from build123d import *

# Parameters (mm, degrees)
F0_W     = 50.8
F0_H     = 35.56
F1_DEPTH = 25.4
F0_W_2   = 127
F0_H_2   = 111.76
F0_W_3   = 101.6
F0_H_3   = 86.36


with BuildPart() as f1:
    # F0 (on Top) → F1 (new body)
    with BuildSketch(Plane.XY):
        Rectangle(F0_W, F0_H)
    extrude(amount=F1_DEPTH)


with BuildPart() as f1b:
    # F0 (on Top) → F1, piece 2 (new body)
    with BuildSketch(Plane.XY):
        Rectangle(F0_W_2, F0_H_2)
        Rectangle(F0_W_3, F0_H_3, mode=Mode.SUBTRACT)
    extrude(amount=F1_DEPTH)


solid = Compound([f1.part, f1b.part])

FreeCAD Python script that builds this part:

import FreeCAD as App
import Part
import Sketcher
Q = App.Units.Quantity

doc = App.newDocument("Part")
body = doc.addObject("PartDesign::Body", "Body")

sketch1 = doc.addObject("Sketcher::SketchObject", "Sketch")
body.addObject(sketch1)
sketch1.AttachmentSupport = (doc.XY_Plane, [""])
sketch1.MapMode = "FlatFace"
sketch1.addGeometry(Part.LineSegment(App.Vector(-25.4, 17.78, 0), App.Vector(-25.4, -17.78, 0)), False)
sketch1.addGeometry(Part.LineSegment(App.Vector(-25.4, -17.78, 0), App.Vector(25.4, -17.78, 0)), False)
sketch1.addGeometry(Part.LineSegment(App.Vector(25.4, -17.78, 0), App.Vector(25.4, 17.78, 0)), False)
sketch1.addGeometry(Part.LineSegment(App.Vector(25.4, 17.78, 0), App.Vector(-25.4, 17.78, 0)), False)
sketch1.addConstraint(Sketcher.Constraint("Coincident", 0, 2, 1, 1))
sketch1.addConstraint(Sketcher.Constraint("Coincident", 1, 2, 2, 1))
sketch1.addConstraint(Sketcher.Constraint("Coincident", 2, 2, 3, 1))
sketch1.addConstraint(Sketcher.Constraint("Coincident", 3, 2, 0, 1))
sketch1.addConstraint(Sketcher.Constraint("Vertical", 0))
sketch1.addConstraint(Sketcher.Constraint("Horizontal", 1))
sketch1.addConstraint(Sketcher.Constraint("Vertical", 2))
sketch1.addConstraint(Sketcher.Constraint("Horizontal", 3))
sketch1.addConstraint(Sketcher.Constraint("Symmetric", 0, 2, 2, 2, -1, 1))
sketch1.addConstraint(Sketcher.Constraint("DistanceX", 1, 1, 1, 2, Q("2 in")))
sketch1.addConstraint(Sketcher.Constraint("DistanceY", 0, 2, 0, 1, Q("1.4 in")))
pad1 = doc.addObject("PartDesign::Pad", "Pad")
body.addObject(pad1)
pad1.Profile = sketch1
pad1.Length = Q("1 in")
body2 = doc.addObject("PartDesign::Body", "Body001")

sketch2 = doc.addObject("Sketcher::SketchObject", "Sketch001")
body2.addObject(sketch2)
sketch2.AttachmentSupport = (doc.getObject("XY_Plane001"), [""])
sketch2.MapMode = "FlatFace"
sketch2.addGeometry(Part.LineSegment(App.Vector(-63.5, 55.88, 0), App.Vector(-63.5, -55.88, 0)), False)
sketch2.addGeometry(Part.LineSegment(App.Vector(-63.5, -55.88, 0), App.Vector(63.5, -55.88, 0)), False)
sketch2.addGeometry(Part.LineSegment(App.Vector(63.5, -55.88, 0), App.Vector(63.5, 55.88, 0)), False)
sketch2.addGeometry(Part.LineSegment(App.Vector(63.5, 55.88, 0), App.Vector(-63.5, 55.88, 0)), False)
sketch2.addGeometry(Part.LineSegment(App.Vector(50.8, -43.18, 0), App.Vector(-50.8, -43.18, 0)), False)
sketch2.addGeometry(Part.LineSegment(App.Vector(-50.8, -43.18, 0), App.Vector(-50.8, 43.18, 0)), False)
sketch2.addGeometry(Part.LineSegment(App.Vector(-50.8, 43.18, 0), App.Vector(50.8, 43.18, 0)), False)
sketch2.addGeometry(Part.LineSegment(App.Vector(50.8, 43.18, 0), App.Vector(50.8, -43.18, 0)), False)
sketch2.addConstraint(Sketcher.Constraint("Coincident", 0, 2, 1, 1))
sketch2.addConstraint(Sketcher.Constraint("Coincident", 1, 2, 2, 1))
sketch2.addConstraint(Sketcher.Constraint("Coincident", 2, 2, 3, 1))
sketch2.addConstraint(Sketcher.Constraint("Coincident", 3, 2, 0, 1))
sketch2.addConstraint(Sketcher.Constraint("Coincident", 4, 2, 5, 1))
sketch2.addConstraint(Sketcher.Constraint("Coincident", 5, 2, 6, 1))
sketch2.addConstraint(Sketcher.Constraint("Coincident", 6, 2, 7, 1))
sketch2.addConstraint(Sketcher.Constraint("Coincident", 7, 2, 4, 1))
sketch2.addConstraint(Sketcher.Constraint("Vertical", 0))
sketch2.addConstraint(Sketcher.Constraint("Horizontal", 1))
sketch2.addConstraint(Sketcher.Constraint("Vertical", 2))
sketch2.addConstraint(Sketcher.Constraint("Horizontal", 3))
sketch2.addConstraint(Sketcher.Constraint("Horizontal", 4))
sketch2.addConstraint(Sketcher.Constraint("Vertical", 5))
sketch2.addConstraint(Sketcher.Constraint("Horizontal", 6))
sketch2.addConstraint(Sketcher.Constraint("Vertical", 7))
sketch2.addConstraint(Sketcher.Constraint("Symmetric", 0, 2, 2, 2, -1, 1))
sketch2.addConstraint(Sketcher.Constraint("Symmetric", 4, 2, 6, 2, -1, 1))
sketch2.addConstraint(Sketcher.Constraint("DistanceX", 1, 1, 1, 2, Q("5 in")))
sketch2.addConstraint(Sketcher.Constraint("DistanceX", 4, 2, 4, 1, Q("4 in")))
sketch2.addConstraint(Sketcher.Constraint("DistanceY", 0, 2, 0, 1, Q("4.4 in")))
sketch2.addConstraint(Sketcher.Constraint("DistanceY", 5, 1, 5, 2, Q("3.4 in")))
pad2 = doc.addObject("PartDesign::Pad", "Pad001")
body2.addObject(pad2)
pad2.Profile = sketch2
pad2.Length = Q("1 in")

doc.recompute()
